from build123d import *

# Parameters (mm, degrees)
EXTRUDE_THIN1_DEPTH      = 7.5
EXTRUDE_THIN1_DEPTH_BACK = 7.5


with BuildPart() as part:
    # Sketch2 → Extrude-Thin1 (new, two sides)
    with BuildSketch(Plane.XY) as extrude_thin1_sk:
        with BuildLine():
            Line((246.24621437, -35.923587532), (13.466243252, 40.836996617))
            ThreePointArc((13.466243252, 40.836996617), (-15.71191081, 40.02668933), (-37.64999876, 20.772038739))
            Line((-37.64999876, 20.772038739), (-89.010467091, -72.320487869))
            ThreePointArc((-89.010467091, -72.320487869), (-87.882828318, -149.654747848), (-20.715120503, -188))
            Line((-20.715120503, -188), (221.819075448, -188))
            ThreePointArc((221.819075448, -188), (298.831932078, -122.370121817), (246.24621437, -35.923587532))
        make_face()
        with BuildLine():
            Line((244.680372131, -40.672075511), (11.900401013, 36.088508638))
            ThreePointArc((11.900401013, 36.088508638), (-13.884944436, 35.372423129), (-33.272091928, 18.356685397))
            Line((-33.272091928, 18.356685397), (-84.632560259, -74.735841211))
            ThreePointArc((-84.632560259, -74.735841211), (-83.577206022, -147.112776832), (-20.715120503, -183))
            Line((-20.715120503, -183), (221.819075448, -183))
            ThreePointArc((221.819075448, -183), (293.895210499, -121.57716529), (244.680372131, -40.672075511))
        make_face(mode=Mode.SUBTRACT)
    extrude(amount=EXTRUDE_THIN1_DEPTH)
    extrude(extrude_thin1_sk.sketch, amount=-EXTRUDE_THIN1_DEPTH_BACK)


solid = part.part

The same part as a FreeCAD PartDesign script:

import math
import FreeCAD as App
import Part
import Sketcher

V = App.Vector
Q = App.Units.Quantity

doc = App.newDocument("Part")
params = doc.addObject("Spreadsheet::Sheet", "Params")
for row, (alias, value) in enumerate([
    ("sketch1_radius", "43 mm"),
    ("sketch1_radius2", "78 mm"),
    ("sketch1_radius3", "73 mm"),
    ("pad1_length", "7.5 mm"),
    ("pad1_length2", "7.5 mm"),
], start=1):
    params.set(f"A{row}", alias)
    params.set(f"B{row}", "=" + value)
    params.setAlias(f"B{row}", alias)

body = doc.addObject("PartDesign::Body", "Body")

# Sketch on XY plane
sketch1 = doc.addObject("Sketcher::SketchObject", "Sketch")
body.addObject(sketch1)
sketch1.AttachmentSupport = (doc.XY_Plane, [""])
sketch1.MapMode = "FlatFace"
sketch1.addGeometry([
    Part.LineSegment(V(246.246214, -35.923588, 0), V(13.466243, 40.836997, 0)),  # 0
    Part.ArcOfCircle(Part.Circle(V(0, 0, 0), V(0, 0, 1), 43), math.radians(71.74972), math.radians(151.113855)),  # 1
    Part.LineSegment(V(-37.649999, 20.772039, 0), V(-89.010467, -72.320488, 0)),  # 2
    Part.ArcOfCircle(Part.Circle(V(-20.715121, -110, 0), V(0, 0, 1), 78), math.radians(151.113855), math.radians(270)),  # 3
    Part.LineSegment(V(-20.715121, -188, 0), V(221.819075, -188, 0)),  # 4
    Part.ArcOfCircle(Part.Circle(V(221.819075, -110, 0), V(0, 0, 1), 78), math.radians(-90), math.radians(71.74972)),  # 5
    Part.LineSegment(V(11.900401, 36.088509, 0), V(244.680372, -40.672076, 0)),  # 6
    Part.ArcOfCircle(Part.Circle(V(221.819075, -110, 0), V(0, 0, 1), 73), math.radians(-90), math.radians(71.74972)),  # 7
    Part.LineSegment(V(221.819075, -183, 0), V(-20.715121, -183, 0)),  # 8
    Part.ArcOfCircle(Part.Circle(V(-20.715121, -110, 0), V(0, 0, 1), 73), math.radians(151.113855), math.radians(270)),  # 9
    Part.LineSegment(V(-84.63256, -74.735841, 0), V(-33.272092, 18.356685, 0)),  # 10
    Part.ArcOfCircle(Part.Circle(V(0, 0, 0), V(0, 0, 1), 38), math.radians(71.74972), math.radians(151.113855)),  # 11
], False)
sketch1.addConstraint([
    Sketcher.Constraint("Tangent", 0, 2, 1, 1),
    Sketcher.Constraint("Tangent", 1, 2, 2, 1),
    Sketcher.Constraint("Tangent", 2, 2, 3, 1),
    Sketcher.Constraint("Tangent", 3, 2, 4, 1),
    Sketcher.Constraint("Tangent", 4, 2, 5, 1),
    Sketcher.Constraint("Tangent", 5, 2, 0, 1),
    Sketcher.Constraint("Tangent", 6, 2, 7, 2),
    Sketcher.Constraint("Tangent", 7, 1, 8, 1),
    Sketcher.Constraint("Tangent", 8, 2, 9, 2),
    Sketcher.Constraint("Tangent", 9, 1, 10, 1),
    Sketcher.Constraint("Tangent", 10, 2, 11, 2),
    Sketcher.Constraint("Tangent", 11, 1, 6, 1),
    Sketcher.Constraint("Horizontal", 4),
    Sketcher.Constraint("Horizontal", 8),
    Sketcher.Constraint("Coincident", 1, 3, -1, 1),
    Sketcher.Constraint("Coincident", 11, 3, -1, 1),
    Sketcher.Constraint("Coincident", 7, 3, 5, 3),
    Sketcher.Constraint("Coincident", 9, 3, 3, 3),
    Sketcher.Constraint("Equal", 3, 5),
    Sketcher.Constraint("Parallel", 0, 6),
    Sketcher.Constraint("Radius", 1, Q("43 mm")),
    Sketcher.Constraint("Radius", 3, Q("78 mm")),
    Sketcher.Constraint("Radius", 7, Q("73 mm")),
    Sketcher.Constraint("DistanceY", 3, 3, -1, 1, Q("110 mm")),
    Sketcher.Constraint("DistanceX", 1, 2, -1, 1, Q("37.649999 mm")),
    Sketcher.Constraint("Distance", 0, Q("245.109572 mm")),
])
sketch1.setExpression("Constraints[20]", "Params.sketch1_radius")
sketch1.setExpression("Constraints[21]", "Params.sketch1_radius2")
sketch1.setExpression("Constraints[22]", "Params.sketch1_radius3")
pad1 = doc.addObject("PartDesign::Pad", "Pad")
body.addObject(pad1)
pad1.Profile = sketch1
pad1.Type = "TwoLengths"
pad1.setExpression("Length", "Params.pad1_length")
pad1.setExpression("Length2", "Params.pad1_length2")

doc.recompute()
